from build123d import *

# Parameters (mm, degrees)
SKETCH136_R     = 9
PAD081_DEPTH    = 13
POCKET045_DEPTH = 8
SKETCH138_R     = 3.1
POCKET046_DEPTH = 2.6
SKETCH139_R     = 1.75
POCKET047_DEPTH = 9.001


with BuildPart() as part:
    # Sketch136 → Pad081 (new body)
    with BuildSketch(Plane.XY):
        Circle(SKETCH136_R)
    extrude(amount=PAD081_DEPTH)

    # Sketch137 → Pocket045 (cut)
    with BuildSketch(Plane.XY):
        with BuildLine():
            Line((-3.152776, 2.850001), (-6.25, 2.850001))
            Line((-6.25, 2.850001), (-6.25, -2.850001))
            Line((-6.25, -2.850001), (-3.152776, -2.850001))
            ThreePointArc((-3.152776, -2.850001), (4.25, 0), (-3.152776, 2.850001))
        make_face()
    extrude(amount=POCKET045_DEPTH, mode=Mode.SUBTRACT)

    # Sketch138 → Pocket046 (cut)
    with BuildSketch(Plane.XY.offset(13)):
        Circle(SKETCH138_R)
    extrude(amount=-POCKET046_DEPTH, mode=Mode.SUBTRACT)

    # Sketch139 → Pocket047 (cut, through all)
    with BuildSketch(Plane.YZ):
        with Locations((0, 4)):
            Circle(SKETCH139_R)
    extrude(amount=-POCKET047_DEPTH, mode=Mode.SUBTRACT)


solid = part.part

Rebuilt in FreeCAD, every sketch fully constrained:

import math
import FreeCAD as App
import Part
import Sketcher
from FreeCAD import Vector

doc = App.newDocument("Part")
body = doc.addObject("PartDesign::Body", "Body")

sketch1 = body.newObject("Sketcher::SketchObject", "Sketch")
sketch1.AttachmentSupport = (doc.getObject("XY_Plane"), [""])
sketch1.MapMode = "FlatFace"
sketch1.addGeometry(Part.Circle(Vector(0, 0, 0), Vector(0, 0, 1), 9), False)
sketch1.addConstraint(Sketcher.Constraint("Coincident", 0, 3, -1, 1))
sketch1.addConstraint(Sketcher.Constraint("Diameter", 0, 18.0))
pad1 = body.newObject("PartDesign::Pad", "Pad")
pad1.Profile = sketch1
pad1.Length = 13

sketch2 = body.newObject("Sketcher::SketchObject", "Sketch001")
sketch2.AttachmentSupport = (doc.getObject("XY_Plane"), [""])
sketch2.MapMode = "FlatFace"
sketch2.addGeometry(Part.LineSegment(Vector(-3.2, 2.9, 0), Vector(-6.2, 2.9, 0)), False)
sketch2.addGeometry(Part.LineSegment(Vector(-6.2, 2.9, 0), Vector(-6.2, -2.9, 0)), False)
sketch2.addGeometry(Part.LineSegment(Vector(-6.2, -2.9, 0), Vector(-3.2, -2.9, 0)), False)
sketch2.addGeometry(Part.ArcOfCircle(Part.Circle(Vector(0, 0, 0), Vector(0, 0, 1), 4.3), math.radians(-138), math.radians(138)), False)
sketch2.addConstraint(Sketcher.Constraint("Coincident", 0, 2, 1, 1))
sketch2.addConstraint(Sketcher.Constraint("Coincident", 1, 2, 2, 1))
sketch2.addConstraint(Sketcher.Constraint("Coincident", 2, 2, 3, 1))
sketch2.addConstraint(Sketcher.Constraint("Coincident", 3, 2, 0, 1))
sketch2.addConstraint(Sketcher.Constraint("Horizontal", 0))
sketch2.addConstraint(Sketcher.Constraint("Vertical", 1))
sketch2.addConstraint(Sketcher.Constraint("Horizontal", 2))
sketch2.addConstraint(Sketcher.Constraint("Coincident", 3, 3, -1, 1))
sketch2.addConstraint(Sketcher.Constraint("Vertical", 2, 2, 3, 2))
sketch2.addConstraint(Sketcher.Constraint("Radius", 3, 4.25))
sketch2.addConstraint(Sketcher.Constraint("DistanceY", 1, 2, 1, 1, 5.700002))
sketch2.addConstraint(Sketcher.Constraint("DistanceX", 0, 2, -1, 1, 6.25))
pocket1 = body.newObject("PartDesign::Pocket", "Pocket")
pocket1.Profile = sketch2
pocket1.Length = 8
pocket1.Reversed = True

sketch3 = body.newObject("Sketcher::SketchObject", "Sketch002")
sketch3.AttachmentSupport = (doc.getObject("XY_Plane"), [""])
sketch3.MapMode = "FlatFace"
sketch3.AttachmentOffset = App.Placement(Vector(0, 0, 13), App.Rotation())
sketch3.addGeometry(Part.Circle(Vector(0, 0, 0), Vector(0, 0, 1), 3.1), False)
sketch3.addConstraint(Sketcher.Constraint("Coincident", 0, 3, -1, 1))
sketch3.addConstraint(Sketcher.Constraint("Diameter", 0, 6.2))
pocket2 = body.newObject("PartDesign::Pocket", "Pocket001")
pocket2.Profile = sketch3
pocket2.Length = 2.6

sketch4 = body.newObject("Sketcher::SketchObject", "Sketch003")
sketch4.AttachmentSupport = (doc.getObject("YZ_Plane"), [""])
sketch4.MapMode = "FlatFace"
sketch4.addGeometry(Part.Circle(Vector(0, 4, 0), Vector(0, 0, 1), 1.8), False)
sketch4.addConstraint(Sketcher.Constraint("PointOnObject", 0, 3, -2))
sketch4.addConstraint(Sketcher.Constraint("Diameter", 0, 3.5))
sketch4.addConstraint(Sketcher.Constraint("DistanceY", -1, 1, 0, 3, 4.0))
pocket3 = body.newObject("PartDesign::Pocket", "Pocket002")
pocket3.Profile = sketch4
pocket3.Type = "ThroughAll"

doc.recompute()
